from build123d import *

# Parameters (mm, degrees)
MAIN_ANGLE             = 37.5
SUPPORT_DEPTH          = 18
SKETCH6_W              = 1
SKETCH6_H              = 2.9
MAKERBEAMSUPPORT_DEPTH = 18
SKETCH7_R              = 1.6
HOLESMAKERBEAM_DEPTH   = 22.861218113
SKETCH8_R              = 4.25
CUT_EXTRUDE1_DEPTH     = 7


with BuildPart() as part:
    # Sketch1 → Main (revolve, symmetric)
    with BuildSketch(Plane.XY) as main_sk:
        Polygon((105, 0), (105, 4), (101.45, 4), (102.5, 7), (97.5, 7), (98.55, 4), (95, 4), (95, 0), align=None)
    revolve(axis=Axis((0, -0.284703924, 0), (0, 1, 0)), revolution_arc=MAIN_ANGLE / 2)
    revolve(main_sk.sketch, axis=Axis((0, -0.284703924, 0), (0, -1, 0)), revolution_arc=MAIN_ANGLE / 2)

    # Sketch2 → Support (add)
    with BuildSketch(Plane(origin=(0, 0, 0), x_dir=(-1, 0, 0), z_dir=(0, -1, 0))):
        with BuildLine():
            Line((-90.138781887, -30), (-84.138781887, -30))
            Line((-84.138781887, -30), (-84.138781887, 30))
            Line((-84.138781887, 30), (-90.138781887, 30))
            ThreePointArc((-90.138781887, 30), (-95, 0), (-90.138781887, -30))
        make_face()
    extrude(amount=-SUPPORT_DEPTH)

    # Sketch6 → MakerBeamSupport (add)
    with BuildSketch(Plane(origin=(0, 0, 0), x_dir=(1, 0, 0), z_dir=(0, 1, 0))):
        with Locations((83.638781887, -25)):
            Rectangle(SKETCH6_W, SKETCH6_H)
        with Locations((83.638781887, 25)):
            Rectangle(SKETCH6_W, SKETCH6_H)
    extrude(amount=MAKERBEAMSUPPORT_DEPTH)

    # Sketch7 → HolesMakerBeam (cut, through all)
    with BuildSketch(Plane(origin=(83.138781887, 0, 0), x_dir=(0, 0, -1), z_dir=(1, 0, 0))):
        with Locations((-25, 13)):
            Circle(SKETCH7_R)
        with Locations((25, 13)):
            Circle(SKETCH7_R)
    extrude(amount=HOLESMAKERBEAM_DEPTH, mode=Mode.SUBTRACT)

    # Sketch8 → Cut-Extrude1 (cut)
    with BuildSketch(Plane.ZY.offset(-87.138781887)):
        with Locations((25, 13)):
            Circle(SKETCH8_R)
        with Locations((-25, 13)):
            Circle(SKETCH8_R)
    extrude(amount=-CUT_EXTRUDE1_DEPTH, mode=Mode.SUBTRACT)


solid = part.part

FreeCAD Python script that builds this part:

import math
import FreeCAD as App
import Part
import Sketcher

V = App.Vector


def add_polygon(sketch, points):
    """Adds a closed chain of lines whose ends are joined by coincident constraints."""
    first, n = sketch.GeometryCount, len(points)
    for a, b in zip(points, points[1:] + points[:1]):
        sketch.addGeometry(Part.LineSegment(App.Vector(*a, 0), App.Vector(*b, 0)), False)
    for i in range(n):
        sketch.addConstraint(Sketcher.Constraint("Coincident", first + i, 2, first + (i + 1) % n, 1))

doc = App.newDocument("Part")
body = doc.addObject("PartDesign::Body", "Body")

# Sketch on XY plane
sketch1 = body.newObject("Sketcher::SketchObject", "Sketch")
sketch1.AttachmentSupport = (doc.getObject("XY_Plane"), [""])
sketch1.MapMode = "FlatFace"
add_polygon(sketch1, [(105, 0), (105, 4), (101.45, 4), (102.5, 7), (97.5, 7), (98.55, 4), (95, 4), (95, 0)])  # lines 0-7
sketch1.addConstraint([
    Sketcher.Constraint("Vertical", 0),
    Sketcher.Constraint("Horizontal", 1),
    Sketcher.Constraint("Horizontal", 3),
    Sketcher.Constraint("Horizontal", 5),
    Sketcher.Constraint("Vertical", 6),
    Sketcher.Constraint("Horizontal", 7),
    Sketcher.Constraint("PointOnObject", 6, 2, -1),
    Sketcher.Constraint("Horizontal", 1, 2, 4, 2),
    Sketcher.Constraint("Equal", 1, 5),
    Sketcher.Constraint("Equal", 2, 4),
    Sketcher.Constraint("DistanceX", 3, 2, 3, 1, 5.0),
    Sketcher.Constraint("DistanceX", 7, 1, 7, 2, 10.0),
    Sketcher.Constraint("DistanceY", 0, 1, 0, 2, 4.0),
    Sketcher.Constraint("DistanceX", -1, 1, 0, 2, 105.0),
    Sketcher.Constraint("DistanceY", -1, 1, 2, 2, 7.0),
    Sketcher.Constraint("DistanceX", 1, 2, 1, 1, 3.55),
])
revolution = body.newObject("PartDesign::Revolution", "Revolution")
revolution.Profile = sketch1
revolution.ReferenceAxis = (sketch1, ["V_Axis"])
revolution.Angle = 18.75

# Sketch on XY plane
sketch2 = body.newObject("Sketcher::SketchObject", "Sketch001")
sketch2.AttachmentSupport = (doc.getObject("XY_Plane"), [""])
sketch2.MapMode = "FlatFace"
add_polygon(sketch2, [(105, 0), (105, 4), (101.45, 4), (102.5, 7), (97.5, 7), (98.55, 4), (95, 4), (95, 0)])  # lines 0-7
sketch2.addConstraint([
    Sketcher.Constraint("Vertical", 0),
    Sketcher.Constraint("Horizontal", 1),
    Sketcher.Constraint("Horizontal", 3),
    Sketcher.Constraint("Horizontal", 5),
    Sketcher.Constraint("Vertical", 6),
    Sketcher.Constraint("Horizontal", 7),
    Sketcher.Constraint("PointOnObject", 6, 2, -1),
    Sketcher.Constraint("Horizontal", 1, 2, 4, 2),
    Sketcher.Constraint("Equal", 1, 5),
    Sketcher.Constraint("Equal", 2, 4),
    Sketcher.Constraint("DistanceX", 3, 2, 3, 1, 5.0),
    Sketcher.Constraint("DistanceX", 7, 1, 7, 2, 10.0),
    Sketcher.Constraint("DistanceY", 0, 1, 0, 2, 4.0),
    Sketcher.Constraint("DistanceX", -1, 1, 0, 2, 105.0),
    Sketcher.Constraint("DistanceY", -1, 1, 2, 2, 7.0),
    Sketcher.Constraint("DistanceX", 1, 2, 1, 1, 3.55),
])
revolution2 = body.newObject("PartDesign::Revolution", "Revolution001")
revolution2.Profile = sketch2
revolution2.ReferenceAxis = (sketch2, ["V_Axis"])
revolution2.Angle = 18.75
revolution2.Reversed = True

# Sketch on XZ plane
sketch3 = body.newObject("Sketcher::SketchObject", "Sketch002")
sketch3.AttachmentSupport = (doc.getObject("XZ_Plane"), [""])
sketch3.MapMode = "FlatFace"
sketch3.addGeometry([
    Part.LineSegment(V(90.138782, 30, 0), V(84.138782, 30, 0)),
    Part.LineSegment(V(84.138782, 30, 0), V(84.138782, -30, 0)),
    Part.LineSegment(V(84.138782, -30, 0), V(90.138782, -30, 0)),
    Part.ArcOfCircle(Part.Circle(V(0, 0, 0), V(0, 0, 1), 95), math.radians(-18.40848), math.radians(18.40848)),
], False)
sketch3.addConstraint([
    Sketcher.Constraint("Coincident", 0, 2, 1, 1),
    Sketcher.Constraint("Coincident", 1, 2, 2, 1),
    Sketcher.Constraint("Coincident", 2, 2, 3, 1),
    Sketcher.Constraint("Coincident", 3, 2, 0, 1),
    Sketcher.Constraint("Horizontal", 0),
    Sketcher.Constraint("Vertical", 1),
    Sketcher.Constraint("Horizontal", 2),
    Sketcher.Constraint("Coincident", 3, 3, -1, 1),
    Sketcher.Constraint("Vertical", 2, 2, 3, 2),
    Sketcher.Constraint("Radius", 3, 95.0),
    Sketcher.Constraint("DistanceX", 0, 2, 0, 1, 6.0),
    Sketcher.Constraint("DistanceY", 1, 2, 1, 1, 60.0),
])
pad1 = body.newObject("PartDesign::Pad", "Pad")
pad1.Profile = sketch3
pad1.Length = 18
pad1.Reversed = True

# Sketch on XZ plane
sketch4 = body.newObject("Sketcher::SketchObject", "Sketch003")
sketch4.AttachmentSupport = (doc.getObject("XZ_Plane"), [""])
sketch4.MapMode = "FlatFace"
add_polygon(sketch4, [(83.138782, 23.55), (83.138782, 26.45), (84.138782, 26.45), (84.138782, 23.55)])  # lines 0-3
add_polygon(sketch4, [(83.138782, -26.45), (83.138782, -23.55), (84.138782, -23.55), (84.138782, -26.45)])  # lines 4-7
sketch4.addConstraint([
    Sketcher.Constraint("Vertical", 0),
    Sketcher.Constraint("Horizontal", 1),
    Sketcher.Constraint("Vertical", 2),
    Sketcher.Constraint("Horizontal", 3),
    Sketcher.Constraint("Vertical", 4),
    Sketcher.Constraint("Horizontal", 5),
    Sketcher.Constraint("Vertical", 6),
    Sketcher.Constraint("Horizontal", 7),
    Sketcher.Constraint("Symmetric", 3, 2, 4, 2, -1),
    Sketcher.Constraint("Symmetric", 1, 2, 6, 2, -1),
    Sketcher.Constraint("DistanceX", 1, 1, 1, 2, 1.0),
    Sketcher.Constraint("DistanceY", 0, 1, 0, 2, 2.9),
    Sketcher.Constraint("DistanceY", 4, 2, 0, 2, 50.0),
    Sketcher.Constraint("DistanceX", -1, 1, 0, 2, 83.138782),
])
pad2 = body.newObject("PartDesign::Pad", "Pad001")
pad2.Profile = sketch4
pad2.Length = 18
pad2.Reversed = True

# Sketch on YZ plane
sketch5 = body.newObject("Sketcher::SketchObject", "Sketch004")
sketch5.AttachmentSupport = (doc.getObject("YZ_Plane"), [""])
sketch5.MapMode = "FlatFace"
sketch5.AttachmentOffset = App.Placement(V(0, 0, 83.138782), App.Rotation())
sketch5.addGeometry([
    Part.Circle(V(13, 25, 0), V(0, 0, 1), 1.6),
    Part.Circle(V(13, -25, 0), V(0, 0, 1), 1.6),
], False)
sketch5.addConstraint([
    Sketcher.Constraint("Equal", 0, 1),
    Sketcher.Constraint("Symmetric", 0, 3, 1, 3, -1),
    Sketcher.Constraint("Diameter", 0, 3.2),
    Sketcher.Constraint("DistanceX", -1, 1, 0, 3, 13.0),
    Sketcher.Constraint("DistanceY", -1, 1, 0, 3, 25.0),
])
pocket1 = body.newObject("PartDesign::Pocket", "Pocket")
pocket1.Profile = sketch5
pocket1.Type = "ThroughAll"
pocket1.Reversed = True

# Sketch on YZ plane
sketch6 = body.newObject("Sketcher::SketchObject", "Sketch005")
sketch6.AttachmentSupport = (doc.getObject("YZ_Plane"), [""])
sketch6.MapMode = "FlatFace"
sketch6.AttachmentOffset = App.Placement(V(0, 0, 87.138782), App.Rotation())
sketch6.addGeometry([
    Part.Circle(V(13, 25, 0), V(0, 0, 1), 4.25),
    Part.Circle(V(13, -25, 0), V(0, 0, 1), 4.25),
], False)
sketch6.addConstraint([
    Sketcher.Constraint("Equal", 0, 1),
    Sketcher.Constraint("Symmetric", 0, 3, 1, 3, -1),
    Sketcher.Constraint("Diameter", 0, 8.5),
    Sketcher.Constraint("DistanceX", -1, 1, 0, 3, 13.0),
    Sketcher.Constraint("DistanceY", -1, 1, 0, 3, 25.0),
])
pocket2 = body.newObject("PartDesign::Pocket", "Pocket001")
pocket2.Profile = sketch6
pocket2.Length = 7
pocket2.Reversed = True

doc.recompute()
